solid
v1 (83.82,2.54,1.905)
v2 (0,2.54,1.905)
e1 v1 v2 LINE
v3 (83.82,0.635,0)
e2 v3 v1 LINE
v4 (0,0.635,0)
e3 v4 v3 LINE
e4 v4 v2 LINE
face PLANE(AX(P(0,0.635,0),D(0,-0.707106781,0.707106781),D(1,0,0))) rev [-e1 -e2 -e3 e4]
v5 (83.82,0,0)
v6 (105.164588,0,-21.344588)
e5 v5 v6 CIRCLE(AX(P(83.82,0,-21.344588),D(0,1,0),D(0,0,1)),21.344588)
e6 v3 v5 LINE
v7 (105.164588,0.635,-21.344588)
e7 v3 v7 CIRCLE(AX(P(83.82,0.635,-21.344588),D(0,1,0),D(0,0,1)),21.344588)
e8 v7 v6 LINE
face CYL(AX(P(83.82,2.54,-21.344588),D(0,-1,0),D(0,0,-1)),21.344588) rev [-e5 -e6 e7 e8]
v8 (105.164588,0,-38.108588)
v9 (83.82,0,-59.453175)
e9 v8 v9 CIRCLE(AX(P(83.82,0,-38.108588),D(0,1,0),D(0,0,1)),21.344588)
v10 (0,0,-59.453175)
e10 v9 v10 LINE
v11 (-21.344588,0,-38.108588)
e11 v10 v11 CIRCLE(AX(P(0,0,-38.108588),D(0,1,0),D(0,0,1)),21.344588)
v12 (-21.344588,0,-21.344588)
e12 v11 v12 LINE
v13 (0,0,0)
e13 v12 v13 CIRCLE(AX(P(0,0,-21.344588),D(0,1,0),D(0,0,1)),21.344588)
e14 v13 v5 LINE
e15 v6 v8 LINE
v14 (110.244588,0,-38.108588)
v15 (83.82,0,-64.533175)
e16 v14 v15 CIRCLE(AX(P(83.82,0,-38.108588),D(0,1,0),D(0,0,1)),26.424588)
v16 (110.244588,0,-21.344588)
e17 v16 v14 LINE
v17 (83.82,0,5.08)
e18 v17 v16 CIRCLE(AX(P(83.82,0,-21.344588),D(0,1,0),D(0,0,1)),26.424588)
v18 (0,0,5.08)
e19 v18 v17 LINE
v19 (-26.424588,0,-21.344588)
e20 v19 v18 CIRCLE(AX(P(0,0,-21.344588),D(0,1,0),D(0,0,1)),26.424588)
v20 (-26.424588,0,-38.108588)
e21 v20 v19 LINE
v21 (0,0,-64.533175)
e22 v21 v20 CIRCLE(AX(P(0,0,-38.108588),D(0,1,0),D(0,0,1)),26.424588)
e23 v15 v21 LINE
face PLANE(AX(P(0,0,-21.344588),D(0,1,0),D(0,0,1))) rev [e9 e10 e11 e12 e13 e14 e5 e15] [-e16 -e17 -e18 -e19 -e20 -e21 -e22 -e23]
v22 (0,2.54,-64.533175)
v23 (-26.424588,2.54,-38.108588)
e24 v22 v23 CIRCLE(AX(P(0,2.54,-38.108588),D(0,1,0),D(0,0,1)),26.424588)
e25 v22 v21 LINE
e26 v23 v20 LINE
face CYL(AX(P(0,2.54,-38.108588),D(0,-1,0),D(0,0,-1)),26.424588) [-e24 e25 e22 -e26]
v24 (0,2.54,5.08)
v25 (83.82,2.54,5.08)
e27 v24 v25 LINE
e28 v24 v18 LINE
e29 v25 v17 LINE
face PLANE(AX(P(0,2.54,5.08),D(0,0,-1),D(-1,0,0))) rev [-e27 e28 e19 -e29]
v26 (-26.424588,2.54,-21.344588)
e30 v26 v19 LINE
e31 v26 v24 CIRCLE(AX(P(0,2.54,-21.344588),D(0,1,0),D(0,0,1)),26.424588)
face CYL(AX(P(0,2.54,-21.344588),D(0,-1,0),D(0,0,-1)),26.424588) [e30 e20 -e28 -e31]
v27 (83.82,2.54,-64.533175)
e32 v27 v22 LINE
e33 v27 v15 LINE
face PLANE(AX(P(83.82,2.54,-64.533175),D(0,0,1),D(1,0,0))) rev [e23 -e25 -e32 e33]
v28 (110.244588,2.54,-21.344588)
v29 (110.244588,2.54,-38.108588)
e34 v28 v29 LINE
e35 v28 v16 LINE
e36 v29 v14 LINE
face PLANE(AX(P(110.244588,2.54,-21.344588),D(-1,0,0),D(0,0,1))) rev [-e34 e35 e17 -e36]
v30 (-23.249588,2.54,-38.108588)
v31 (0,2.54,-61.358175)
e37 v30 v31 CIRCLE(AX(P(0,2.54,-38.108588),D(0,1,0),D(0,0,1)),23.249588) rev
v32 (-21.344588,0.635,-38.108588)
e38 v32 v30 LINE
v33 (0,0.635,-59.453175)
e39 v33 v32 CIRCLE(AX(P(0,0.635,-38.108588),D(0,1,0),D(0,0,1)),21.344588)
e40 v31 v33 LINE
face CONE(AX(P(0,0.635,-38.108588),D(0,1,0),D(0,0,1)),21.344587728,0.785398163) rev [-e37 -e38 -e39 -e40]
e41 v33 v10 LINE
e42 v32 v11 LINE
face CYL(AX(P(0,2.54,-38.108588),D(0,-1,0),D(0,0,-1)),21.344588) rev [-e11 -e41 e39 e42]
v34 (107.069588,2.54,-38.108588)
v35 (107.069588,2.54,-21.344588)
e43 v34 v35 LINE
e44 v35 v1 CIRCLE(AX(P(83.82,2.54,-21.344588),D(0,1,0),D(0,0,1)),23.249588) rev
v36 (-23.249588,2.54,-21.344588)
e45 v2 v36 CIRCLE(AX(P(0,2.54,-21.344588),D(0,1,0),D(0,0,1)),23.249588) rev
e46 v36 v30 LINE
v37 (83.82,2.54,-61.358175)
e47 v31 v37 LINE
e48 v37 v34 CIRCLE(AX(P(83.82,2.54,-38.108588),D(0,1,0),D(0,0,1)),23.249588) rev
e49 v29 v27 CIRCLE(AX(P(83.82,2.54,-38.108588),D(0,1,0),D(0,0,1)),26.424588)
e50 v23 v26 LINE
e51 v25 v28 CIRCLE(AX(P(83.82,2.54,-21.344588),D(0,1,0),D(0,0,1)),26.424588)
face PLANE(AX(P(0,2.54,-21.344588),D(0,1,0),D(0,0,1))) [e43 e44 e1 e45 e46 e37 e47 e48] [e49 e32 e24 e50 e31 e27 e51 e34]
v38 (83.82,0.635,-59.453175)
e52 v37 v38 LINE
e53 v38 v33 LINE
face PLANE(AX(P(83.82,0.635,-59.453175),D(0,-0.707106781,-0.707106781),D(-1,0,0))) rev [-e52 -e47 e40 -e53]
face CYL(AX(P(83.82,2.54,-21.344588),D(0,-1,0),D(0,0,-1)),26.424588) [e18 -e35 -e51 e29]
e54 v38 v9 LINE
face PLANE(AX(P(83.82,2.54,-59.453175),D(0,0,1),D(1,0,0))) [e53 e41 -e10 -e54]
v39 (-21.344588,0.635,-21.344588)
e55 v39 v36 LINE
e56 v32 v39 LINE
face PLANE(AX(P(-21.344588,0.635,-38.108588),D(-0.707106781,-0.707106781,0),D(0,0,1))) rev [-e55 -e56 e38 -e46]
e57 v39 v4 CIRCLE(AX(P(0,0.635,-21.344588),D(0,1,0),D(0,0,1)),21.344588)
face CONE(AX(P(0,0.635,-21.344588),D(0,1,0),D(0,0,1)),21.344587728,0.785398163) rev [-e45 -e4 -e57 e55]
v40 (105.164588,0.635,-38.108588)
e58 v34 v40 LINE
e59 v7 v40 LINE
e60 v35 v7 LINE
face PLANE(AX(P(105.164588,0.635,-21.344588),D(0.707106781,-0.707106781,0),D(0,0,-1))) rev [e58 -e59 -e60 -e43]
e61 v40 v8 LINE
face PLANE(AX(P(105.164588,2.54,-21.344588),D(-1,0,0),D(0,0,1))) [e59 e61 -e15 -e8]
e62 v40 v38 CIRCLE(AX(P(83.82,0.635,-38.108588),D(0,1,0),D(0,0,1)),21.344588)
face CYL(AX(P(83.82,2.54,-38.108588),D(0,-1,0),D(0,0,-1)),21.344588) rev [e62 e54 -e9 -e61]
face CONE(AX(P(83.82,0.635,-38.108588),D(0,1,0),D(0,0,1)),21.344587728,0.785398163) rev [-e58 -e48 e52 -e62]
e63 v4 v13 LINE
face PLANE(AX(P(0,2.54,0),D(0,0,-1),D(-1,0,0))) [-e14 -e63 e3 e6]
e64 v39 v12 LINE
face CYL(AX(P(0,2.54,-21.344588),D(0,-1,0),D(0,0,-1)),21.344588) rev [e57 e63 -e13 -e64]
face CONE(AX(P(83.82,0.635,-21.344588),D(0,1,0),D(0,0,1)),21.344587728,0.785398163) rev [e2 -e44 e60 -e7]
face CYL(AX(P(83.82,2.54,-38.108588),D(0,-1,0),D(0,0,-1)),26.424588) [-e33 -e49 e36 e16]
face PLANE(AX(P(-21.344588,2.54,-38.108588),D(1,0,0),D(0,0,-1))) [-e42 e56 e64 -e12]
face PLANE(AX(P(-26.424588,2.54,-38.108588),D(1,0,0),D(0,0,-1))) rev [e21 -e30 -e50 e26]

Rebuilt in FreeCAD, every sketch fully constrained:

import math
import FreeCAD as App
import Part
import Sketcher
Q = App.Units.Quantity


def edges_at(feature, points):
    """Names of the edges that pass closest to the given points."""
    edges = feature.Shape.Edges
    near = lambda p: min(range(len(edges)), key=lambda i: edges[i].distToShape(Part.Vertex(*p))[0])
    return sorted({f"Edge{near(p) + 1}" for p in points})

doc = App.newDocument("Part")
params = doc.addObject("Spreadsheet::Sheet", "Params")
for row, (alias, value) in enumerate([
    ("sketch1_width", "3.3 in"),
    ("sketch1_height", "0.66 in"),
    ("pad1_length", "0.1 in"),
    ("chamfer_size", "0.075 in"),
], start=1):
    params.set(f"A{row}", alias)
    params.set(f"B{row}", "=" + value)
    params.setAlias(f"B{row}", alias)

body = doc.addObject("PartDesign::Body", "Body")

# Sketch on XZ plane
sketch1 = body.newObject("Sketcher::SketchObject", "Sketch")
sketch1.AttachmentSupport = (doc.getObject("XZ_Plane"), [""])
sketch1.MapMode = "FlatFace"
sketch1.addGeometry(Part.LineSegment(App.Vector(0, 5.08, 0), App.Vector(83.82, 5.08, 0)), False)
sketch1.addGeometry(Part.ArcOfCircle(Part.Circle(App.Vector(83.82, -21.344588, 0), App.Vector(0, 0, 1), 26.424588), math.radians(0), math.radians(90)), False)
sketch1.addGeometry(Part.LineSegment(App.Vector(110.244588, -21.344588, 0), App.Vector(110.244588, -38.108588, 0)), False)
sketch1.addGeometry(Part.ArcOfCircle(Part.Circle(App.Vector(83.82, -38.108588, 0), App.Vector(0, 0, 1), 26.424588), math.radians(-90), math.radians(0)), False)
sketch1.addGeometry(Part.LineSegment(App.Vector(83.82, -64.533175, 0), App.Vector(0, -64.533175, 0)), False)
sketch1.addGeometry(Part.ArcOfCircle(Part.Circle(App.Vector(0, -38.108588, 0), App.Vector(0, 0, 1), 26.424588), math.radians(-180), math.radians(-90)), False)
sketch1.addGeometry(Part.LineSegment(App.Vector(-26.424588, -38.108588, 0), App.Vector(-26.424588, -21.344588, 0)), False)
sketch1.addGeometry(Part.ArcOfCircle(Part.Circle(App.Vector(0, -21.344588, 0), App.Vector(0, 0, 1), 26.424588), math.radians(90), math.radians(180)), False)
sketch1.addGeometry(Part.LineSegment(App.Vector(83.82, 0, 0), App.Vector(0, 0, 0)), False)
sketch1.addGeometry(Part.ArcOfCircle(Part.Circle(App.Vector(0, -21.344588, 0), App.Vector(0, 0, 1), 21.344588), math.radians(90), math.radians(180)), False)
sketch1.addGeometry(Part.LineSegment(App.Vector(-21.344588, -21.344588, 0), App.Vector(-21.344588, -38.108588, 0)), False)
sketch1.addGeometry(Part.ArcOfCircle(Part.Circle(App.Vector(0, -38.108588, 0), App.Vector(0, 0, 1), 21.344588), math.radians(180), math.radians(270)), False)
sketch1.addGeometry(Part.LineSegment(App.Vector(0, -59.453175, 0), App.Vector(83.82, -59.453175, 0)), False)
sketch1.addGeometry(Part.ArcOfCircle(Part.Circle(App.Vector(83.82, -38.108588, 0), App.Vector(0, 0, 1), 21.344588), math.radians(-90), math.radians(0)), False)
sketch1.addGeometry(Part.LineSegment(App.Vector(105.164588, -38.108588, 0), App.Vector(105.164588, -21.344588, 0)), False)
sketch1.addGeometry(Part.ArcOfCircle(Part.Circle(App.Vector(83.82, -21.344588, 0), App.Vector(0, 0, 1), 21.344588), math.radians(0), math.radians(90)), False)
sketch1.addConstraint(Sketcher.Constraint("Tangent", 0, 2, 1, 2))
sketch1.addConstraint(Sketcher.Constraint("Tangent", 1, 1, 2, 1))
sketch1.addConstraint(Sketcher.Constraint("Tangent", 2, 2, 3, 2))
sketch1.addConstraint(Sketcher.Constraint("Tangent", 3, 1, 4, 1))
sketch1.addConstraint(Sketcher.Constraint("Tangent", 4, 2, 5, 2))
sketch1.addConstraint(Sketcher.Constraint("Tangent", 5, 1, 6, 1))
sketch1.addConstraint(Sketcher.Constraint("Tangent", 6, 2, 7, 2))
sketch1.addConstraint(Sketcher.Constraint("Tangent", 7, 1, 0, 1))
sketch1.addConstraint(Sketcher.Constraint("Tangent", 8, 2, 9, 1))
sketch1.addConstraint(Sketcher.Constraint("Tangent", 9, 2, 10, 1))
sketch1.addConstraint(Sketcher.Constraint("Tangent", 10, 2, 11, 1))
sketch1.addConstraint(Sketcher.Constraint("Tangent", 11, 2, 12, 1))
sketch1.addConstraint(Sketcher.Constraint("Tangent", 12, 2, 13, 1))
sketch1.addConstraint(Sketcher.Constraint("Tangent", 13, 2, 14, 1))
sketch1.addConstraint(Sketcher.Constraint("Tangent", 14, 2, 15, 1))
sketch1.addConstraint(Sketcher.Constraint("Tangent", 15, 2, 8, 1))
sketch1.addConstraint(Sketcher.Constraint("Horizontal", 0))
sketch1.addConstraint(Sketcher.Constraint("Vertical", 2))
sketch1.addConstraint(Sketcher.Constraint("Horizontal", 4))
sketch1.addConstraint(Sketcher.Constraint("Vertical", 6))
sketch1.addConstraint(Sketcher.Constraint("Horizontal", 8))
sketch1.addConstraint(Sketcher.Constraint("Vertical", 10))
sketch1.addConstraint(Sketcher.Constraint("Horizontal", 12))
sketch1.addConstraint(Sketcher.Constraint("Vertical", 14))
sketch1.addConstraint(Sketcher.Constraint("Coincident", 8, 2, -1, 1))
sketch1.addConstraint(Sketcher.Constraint("Coincident", 9, 3, 7, 3))
sketch1.addConstraint(Sketcher.Constraint("Coincident", 11, 3, 5, 3))
sketch1.addConstraint(Sketcher.Constraint("Coincident", 13, 3, 3, 3))
sketch1.addConstraint(Sketcher.Constraint("Equal", 1, 3))
sketch1.addConstraint(Sketcher.Constraint("Equal", 3, 5))
sketch1.addConstraint(Sketcher.Constraint("Equal", 5, 7))
sketch1.addConstraint(Sketcher.Constraint("Equal", 13, 15))
sketch1.addConstraint(Sketcher.Constraint("DistanceX", 0, 1, 0, 2, Q("3.3 in")))
sketch1.addConstraint(Sketcher.Constraint("DistanceY", 2, 2, 2, 1, Q("0.66 in")))
sketch1.addConstraint(Sketcher.Constraint("DistanceY", -1, 1, 0, 2, Q("0.2 in")))
sketch1.addConstraint(Sketcher.Constraint("Radius", 1, Q("26.424588 mm")))
sketch1.setExpression("Constraints[32]", "Params.sketch1_width")
sketch1.setExpression("Constraints[33]", "Params.sketch1_height")
pad1 = body.newObject("PartDesign::Pad", "Pad")
pad1.Profile = sketch1
pad1.setExpression("Length", "Params.pad1_length")
pad1.Reversed = True
doc.recompute()

chamfer = body.newObject("PartDesign::Chamfer", "Chamfer")
chamfer.Base = (pad1, edges_at(pad1, [
    (-15.093, 2.54, -6.252),
    (41.91, 2.54, 0),
    (98.913, 2.54, -6.252),
    (105.165, 2.54, -29.727),
    (98.913, 2.54, -53.201),
    (41.91, 2.54, -59.453),
    (-15.093, 2.54, -53.201),
    (-21.345, 2.54, -29.727),
]))
chamfer.setExpression("Size", "Params.chamfer_size")

doc.recompute()
